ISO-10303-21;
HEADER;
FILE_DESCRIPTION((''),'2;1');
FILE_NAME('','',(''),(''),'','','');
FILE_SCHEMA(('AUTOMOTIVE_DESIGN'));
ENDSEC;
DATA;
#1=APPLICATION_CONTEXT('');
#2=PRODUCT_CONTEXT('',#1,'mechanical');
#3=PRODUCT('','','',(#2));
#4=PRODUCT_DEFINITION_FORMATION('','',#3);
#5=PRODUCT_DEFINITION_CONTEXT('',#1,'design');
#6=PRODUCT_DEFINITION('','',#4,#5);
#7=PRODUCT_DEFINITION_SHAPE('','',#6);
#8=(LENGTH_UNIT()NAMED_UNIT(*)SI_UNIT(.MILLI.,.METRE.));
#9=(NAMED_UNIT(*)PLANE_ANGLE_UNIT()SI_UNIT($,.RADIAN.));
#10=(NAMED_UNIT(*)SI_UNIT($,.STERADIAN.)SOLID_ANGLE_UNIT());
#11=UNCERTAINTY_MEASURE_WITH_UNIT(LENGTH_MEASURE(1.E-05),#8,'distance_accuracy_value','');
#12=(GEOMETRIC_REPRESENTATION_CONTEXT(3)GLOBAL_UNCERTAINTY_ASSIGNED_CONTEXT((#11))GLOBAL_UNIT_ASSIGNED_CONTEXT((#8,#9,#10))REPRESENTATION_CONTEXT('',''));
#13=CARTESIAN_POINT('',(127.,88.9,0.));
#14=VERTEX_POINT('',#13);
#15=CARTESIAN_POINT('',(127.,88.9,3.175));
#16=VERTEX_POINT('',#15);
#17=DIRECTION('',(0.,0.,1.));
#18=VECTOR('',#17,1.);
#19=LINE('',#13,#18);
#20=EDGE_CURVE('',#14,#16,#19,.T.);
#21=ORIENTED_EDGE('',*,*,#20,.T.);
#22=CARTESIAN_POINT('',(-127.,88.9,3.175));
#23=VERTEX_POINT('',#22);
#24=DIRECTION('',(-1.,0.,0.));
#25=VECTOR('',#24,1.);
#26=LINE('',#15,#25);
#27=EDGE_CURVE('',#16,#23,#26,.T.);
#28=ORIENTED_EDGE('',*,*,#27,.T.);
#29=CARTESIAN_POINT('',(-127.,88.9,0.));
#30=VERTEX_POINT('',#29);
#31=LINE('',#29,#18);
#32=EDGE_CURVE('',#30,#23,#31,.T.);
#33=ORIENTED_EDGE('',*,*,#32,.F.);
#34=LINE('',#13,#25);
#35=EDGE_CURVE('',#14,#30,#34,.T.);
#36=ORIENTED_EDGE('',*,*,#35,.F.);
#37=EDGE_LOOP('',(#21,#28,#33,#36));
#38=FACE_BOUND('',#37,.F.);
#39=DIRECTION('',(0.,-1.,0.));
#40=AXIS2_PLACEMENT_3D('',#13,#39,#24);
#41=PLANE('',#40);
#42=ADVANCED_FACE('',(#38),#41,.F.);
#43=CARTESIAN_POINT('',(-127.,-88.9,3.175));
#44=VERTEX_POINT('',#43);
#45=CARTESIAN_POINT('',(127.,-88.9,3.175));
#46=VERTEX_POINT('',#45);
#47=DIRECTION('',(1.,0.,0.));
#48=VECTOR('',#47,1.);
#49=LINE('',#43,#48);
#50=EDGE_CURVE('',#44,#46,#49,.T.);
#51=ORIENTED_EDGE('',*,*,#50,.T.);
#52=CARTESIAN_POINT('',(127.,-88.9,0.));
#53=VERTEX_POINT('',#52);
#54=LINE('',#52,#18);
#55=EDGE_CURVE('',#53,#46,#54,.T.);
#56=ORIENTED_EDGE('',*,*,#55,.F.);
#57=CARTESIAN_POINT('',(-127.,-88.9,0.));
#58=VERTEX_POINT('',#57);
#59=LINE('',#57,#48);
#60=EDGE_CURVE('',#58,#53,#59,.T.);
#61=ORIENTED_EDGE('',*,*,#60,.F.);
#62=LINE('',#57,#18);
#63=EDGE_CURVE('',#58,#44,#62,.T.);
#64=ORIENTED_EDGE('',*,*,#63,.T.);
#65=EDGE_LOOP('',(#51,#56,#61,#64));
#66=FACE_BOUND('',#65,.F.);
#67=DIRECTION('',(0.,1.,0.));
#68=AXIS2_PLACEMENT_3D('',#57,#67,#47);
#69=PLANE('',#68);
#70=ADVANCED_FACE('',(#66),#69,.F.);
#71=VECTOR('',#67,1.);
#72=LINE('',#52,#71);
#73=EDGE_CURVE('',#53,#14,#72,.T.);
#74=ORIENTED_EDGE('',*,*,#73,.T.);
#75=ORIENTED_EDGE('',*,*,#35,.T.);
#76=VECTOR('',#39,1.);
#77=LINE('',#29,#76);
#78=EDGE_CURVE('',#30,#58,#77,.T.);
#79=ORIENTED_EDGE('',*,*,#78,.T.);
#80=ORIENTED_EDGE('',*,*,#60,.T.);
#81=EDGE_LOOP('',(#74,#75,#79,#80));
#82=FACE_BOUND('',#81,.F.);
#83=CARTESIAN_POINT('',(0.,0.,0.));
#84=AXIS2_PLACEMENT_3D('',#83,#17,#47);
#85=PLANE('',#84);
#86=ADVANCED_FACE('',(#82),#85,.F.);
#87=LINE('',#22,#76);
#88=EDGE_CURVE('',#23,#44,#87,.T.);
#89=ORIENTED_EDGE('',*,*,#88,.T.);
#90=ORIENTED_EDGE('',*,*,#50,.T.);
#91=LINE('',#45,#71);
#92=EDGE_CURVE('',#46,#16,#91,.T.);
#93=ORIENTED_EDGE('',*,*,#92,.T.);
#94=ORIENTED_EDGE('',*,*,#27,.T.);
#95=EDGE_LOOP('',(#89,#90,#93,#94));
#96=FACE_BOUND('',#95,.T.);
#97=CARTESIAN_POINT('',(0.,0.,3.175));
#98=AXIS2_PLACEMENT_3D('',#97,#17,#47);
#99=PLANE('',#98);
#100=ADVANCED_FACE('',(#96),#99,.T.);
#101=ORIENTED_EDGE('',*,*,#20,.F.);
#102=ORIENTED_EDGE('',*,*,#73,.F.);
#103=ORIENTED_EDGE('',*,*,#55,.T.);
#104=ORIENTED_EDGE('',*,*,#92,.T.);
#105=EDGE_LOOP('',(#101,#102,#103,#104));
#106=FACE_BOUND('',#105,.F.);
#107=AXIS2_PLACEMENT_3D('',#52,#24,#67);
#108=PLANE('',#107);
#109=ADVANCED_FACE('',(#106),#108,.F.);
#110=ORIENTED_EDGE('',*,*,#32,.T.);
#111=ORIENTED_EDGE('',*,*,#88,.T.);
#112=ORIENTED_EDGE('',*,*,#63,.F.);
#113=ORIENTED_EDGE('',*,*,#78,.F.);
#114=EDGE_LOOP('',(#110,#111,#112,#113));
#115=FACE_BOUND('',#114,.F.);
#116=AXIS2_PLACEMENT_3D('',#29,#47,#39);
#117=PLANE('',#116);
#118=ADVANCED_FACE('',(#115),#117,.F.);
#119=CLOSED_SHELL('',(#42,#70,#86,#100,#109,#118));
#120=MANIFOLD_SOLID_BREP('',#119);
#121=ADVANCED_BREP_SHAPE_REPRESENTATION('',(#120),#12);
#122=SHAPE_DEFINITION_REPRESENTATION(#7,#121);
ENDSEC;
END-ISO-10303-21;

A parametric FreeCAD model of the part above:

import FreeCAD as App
import Part
import Sketcher

V = App.Vector
Q = App.Units.Quantity


def add_polygon(sketch, points):
    """Adds a closed chain of lines whose ends are joined by coincident constraints."""
    first, n = sketch.GeometryCount, len(points)
    for a, b in zip(points, points[1:] + points[:1]):
        sketch.addGeometry(Part.LineSegment(App.Vector(*a, 0), App.Vector(*b, 0)), False)
    for i in range(n):
        sketch.addConstraint(Sketcher.Constraint("Coincident", first + i, 2, first + (i + 1) % n, 1))

doc = App.newDocument("Part")
body = doc.addObject("PartDesign::Body", "Body")

sketch1 = body.newObject("Sketcher::SketchObject", "Sketch")
sketch1.AttachmentSupport = (doc.getObject("XY_Plane"), [""])
sketch1.MapMode = "FlatFace"
add_polygon(sketch1, [(-127, 89), (-127, -89), (127, -89), (127, 89)])
sketch1.addConstraint([
    Sketcher.Constraint("Vertical", 0),
    Sketcher.Constraint("Horizontal", 1),
    Sketcher.Constraint("Vertical", 2),
    Sketcher.Constraint("Horizontal", 3),
    Sketcher.Constraint("Symmetric", 0, 2, 2, 2, -1, 1),
    Sketcher.Constraint("DistanceX", 1, 1, 1, 2, Q("10 in")),
    Sketcher.Constraint("DistanceY", 0, 2, 0, 1, Q("7 in")),
])
pad1 = body.newObject("PartDesign::Pad", "Pad")
pad1.Profile = sketch1
pad1.Length = Q("0.125 in")

doc.recompute()
